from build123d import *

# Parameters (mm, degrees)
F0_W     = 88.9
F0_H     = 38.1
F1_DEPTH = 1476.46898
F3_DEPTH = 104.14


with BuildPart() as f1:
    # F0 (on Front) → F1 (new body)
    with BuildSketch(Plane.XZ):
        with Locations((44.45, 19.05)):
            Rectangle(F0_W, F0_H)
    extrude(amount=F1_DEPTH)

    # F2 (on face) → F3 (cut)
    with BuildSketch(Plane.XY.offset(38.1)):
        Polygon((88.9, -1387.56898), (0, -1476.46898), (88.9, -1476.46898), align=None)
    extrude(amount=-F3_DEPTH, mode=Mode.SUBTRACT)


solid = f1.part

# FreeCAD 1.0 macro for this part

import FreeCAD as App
import Part
import Sketcher
Q = App.Units.Quantity

doc = App.newDocument("Part")
params = doc.addObject("Spreadsheet::Sheet", "Params")
for row, (alias, value) in enumerate([
    ("sketch1_width", "3.5 in"),
    ("sketch1_height", "1.5 in"),
    ("pad1_length", "58.1287 in"),
    ("sketch2_width", "3.5 in"),
    ("pocket1_length", "4.1 in"),
], start=1):
    params.set(f"A{row}", alias)
    params.set(f"B{row}", "=" + value)
    params.setAlias(f"B{row}", alias)

body = doc.addObject("PartDesign::Body", "Body")

# Sketch on XZ plane
sketch1 = body.newObject("Sketcher::SketchObject", "Sketch")
sketch1.AttachmentSupport = (doc.getObject("XZ_Plane"), [""])
sketch1.MapMode = "FlatFace"
sketch1.addGeometry([
    Part.LineSegment(App.Vector(0, 38.1, 0), App.Vector(0, 0, 0)),
    Part.LineSegment(App.Vector(0, 0, 0), App.Vector(88.9, 0, 0)),
    Part.LineSegment(App.Vector(88.9, 0, 0), App.Vector(88.9, 38.1, 0)),
    Part.LineSegment(App.Vector(88.9, 38.1, 0), App.Vector(0, 38.1, 0)),
], False)
sketch1.addConstraint([
    Sketcher.Constraint("Coincident", 0, 2, 1, 1),
    Sketcher.Constraint("Coincident", 1, 2, 2, 1),
    Sketcher.Constraint("Coincident", 2, 2, 3, 1),
    Sketcher.Constraint("Coincident", 3, 2, 0, 1),
    Sketcher.Constraint("Vertical", 0),
    Sketcher.Constraint("Horizontal", 1),
    Sketcher.Constraint("Vertical", 2),
    Sketcher.Constraint("Horizontal", 3),
    Sketcher.Constraint("Coincident", 0, 2, -1, 1),
    Sketcher.Constraint("DistanceX", 1, 1, 1, 2, Q("3.5 in")),
    Sketcher.Constraint("DistanceY", 0, 2, 0, 1, Q("1.5 in")),
])
sketch1.setExpression("Constraints[9]", "Params.sketch1_width")
sketch1.setExpression("Constraints[10]", "Params.sketch1_height")
pad1 = body.newObject("PartDesign::Pad", "Pad")
pad1.Profile = sketch1
pad1.setExpression("Length", "Params.pad1_length")

# Sketch on XY plane
sketch2 = body.newObject("Sketcher::SketchObject", "Sketch001")
sketch2.AttachmentSupport = (doc.getObject("XY_Plane"), [""])
sketch2.MapMode = "FlatFace"
sketch2.AttachmentOffset = App.Placement(App.Vector(0, 0, 1.5 * 25.4), App.Rotation())
sketch2.addGeometry([
    Part.LineSegment(App.Vector(88.9, -1387.56898, 0), App.Vector(0, -1476.46898, 0)),
    Part.LineSegment(App.Vector(0, -1476.46898, 0), App.Vector(88.9, -1476.46898, 0)),
    Part.LineSegment(App.Vector(88.9, -1476.46898, 0), App.Vector(88.9, -1387.56898, 0)),
], False)
sketch2.addConstraint([
    Sketcher.Constraint("Coincident", 0, 2, 1, 1),
    Sketcher.Constraint("Coincident", 1, 2, 2, 1),
    Sketcher.Constraint("Coincident", 2, 2, 0, 1),
    Sketcher.Constraint("Horizontal", 1),
    Sketcher.Constraint("Vertical", 2),
    Sketcher.Constraint("PointOnObject", 0, 2, -2),
    Sketcher.Constraint("Equal", 1, 2),
    Sketcher.Constraint("DistanceX", 1, 1, 1, 2, Q("3.5 in")),
    Sketcher.Constraint("DistanceY", 0, 2, -1, 1, Q("58.1287 in")),
])
sketch2.setExpression("Constraints[7]", "Params.sketch2_width")
pocket1 = body.newObject("PartDesign::Pocket", "Pocket")
pocket1.Profile = sketch2
pocket1.setExpression("Length", "Params.pocket1_length")

doc.recompute()
